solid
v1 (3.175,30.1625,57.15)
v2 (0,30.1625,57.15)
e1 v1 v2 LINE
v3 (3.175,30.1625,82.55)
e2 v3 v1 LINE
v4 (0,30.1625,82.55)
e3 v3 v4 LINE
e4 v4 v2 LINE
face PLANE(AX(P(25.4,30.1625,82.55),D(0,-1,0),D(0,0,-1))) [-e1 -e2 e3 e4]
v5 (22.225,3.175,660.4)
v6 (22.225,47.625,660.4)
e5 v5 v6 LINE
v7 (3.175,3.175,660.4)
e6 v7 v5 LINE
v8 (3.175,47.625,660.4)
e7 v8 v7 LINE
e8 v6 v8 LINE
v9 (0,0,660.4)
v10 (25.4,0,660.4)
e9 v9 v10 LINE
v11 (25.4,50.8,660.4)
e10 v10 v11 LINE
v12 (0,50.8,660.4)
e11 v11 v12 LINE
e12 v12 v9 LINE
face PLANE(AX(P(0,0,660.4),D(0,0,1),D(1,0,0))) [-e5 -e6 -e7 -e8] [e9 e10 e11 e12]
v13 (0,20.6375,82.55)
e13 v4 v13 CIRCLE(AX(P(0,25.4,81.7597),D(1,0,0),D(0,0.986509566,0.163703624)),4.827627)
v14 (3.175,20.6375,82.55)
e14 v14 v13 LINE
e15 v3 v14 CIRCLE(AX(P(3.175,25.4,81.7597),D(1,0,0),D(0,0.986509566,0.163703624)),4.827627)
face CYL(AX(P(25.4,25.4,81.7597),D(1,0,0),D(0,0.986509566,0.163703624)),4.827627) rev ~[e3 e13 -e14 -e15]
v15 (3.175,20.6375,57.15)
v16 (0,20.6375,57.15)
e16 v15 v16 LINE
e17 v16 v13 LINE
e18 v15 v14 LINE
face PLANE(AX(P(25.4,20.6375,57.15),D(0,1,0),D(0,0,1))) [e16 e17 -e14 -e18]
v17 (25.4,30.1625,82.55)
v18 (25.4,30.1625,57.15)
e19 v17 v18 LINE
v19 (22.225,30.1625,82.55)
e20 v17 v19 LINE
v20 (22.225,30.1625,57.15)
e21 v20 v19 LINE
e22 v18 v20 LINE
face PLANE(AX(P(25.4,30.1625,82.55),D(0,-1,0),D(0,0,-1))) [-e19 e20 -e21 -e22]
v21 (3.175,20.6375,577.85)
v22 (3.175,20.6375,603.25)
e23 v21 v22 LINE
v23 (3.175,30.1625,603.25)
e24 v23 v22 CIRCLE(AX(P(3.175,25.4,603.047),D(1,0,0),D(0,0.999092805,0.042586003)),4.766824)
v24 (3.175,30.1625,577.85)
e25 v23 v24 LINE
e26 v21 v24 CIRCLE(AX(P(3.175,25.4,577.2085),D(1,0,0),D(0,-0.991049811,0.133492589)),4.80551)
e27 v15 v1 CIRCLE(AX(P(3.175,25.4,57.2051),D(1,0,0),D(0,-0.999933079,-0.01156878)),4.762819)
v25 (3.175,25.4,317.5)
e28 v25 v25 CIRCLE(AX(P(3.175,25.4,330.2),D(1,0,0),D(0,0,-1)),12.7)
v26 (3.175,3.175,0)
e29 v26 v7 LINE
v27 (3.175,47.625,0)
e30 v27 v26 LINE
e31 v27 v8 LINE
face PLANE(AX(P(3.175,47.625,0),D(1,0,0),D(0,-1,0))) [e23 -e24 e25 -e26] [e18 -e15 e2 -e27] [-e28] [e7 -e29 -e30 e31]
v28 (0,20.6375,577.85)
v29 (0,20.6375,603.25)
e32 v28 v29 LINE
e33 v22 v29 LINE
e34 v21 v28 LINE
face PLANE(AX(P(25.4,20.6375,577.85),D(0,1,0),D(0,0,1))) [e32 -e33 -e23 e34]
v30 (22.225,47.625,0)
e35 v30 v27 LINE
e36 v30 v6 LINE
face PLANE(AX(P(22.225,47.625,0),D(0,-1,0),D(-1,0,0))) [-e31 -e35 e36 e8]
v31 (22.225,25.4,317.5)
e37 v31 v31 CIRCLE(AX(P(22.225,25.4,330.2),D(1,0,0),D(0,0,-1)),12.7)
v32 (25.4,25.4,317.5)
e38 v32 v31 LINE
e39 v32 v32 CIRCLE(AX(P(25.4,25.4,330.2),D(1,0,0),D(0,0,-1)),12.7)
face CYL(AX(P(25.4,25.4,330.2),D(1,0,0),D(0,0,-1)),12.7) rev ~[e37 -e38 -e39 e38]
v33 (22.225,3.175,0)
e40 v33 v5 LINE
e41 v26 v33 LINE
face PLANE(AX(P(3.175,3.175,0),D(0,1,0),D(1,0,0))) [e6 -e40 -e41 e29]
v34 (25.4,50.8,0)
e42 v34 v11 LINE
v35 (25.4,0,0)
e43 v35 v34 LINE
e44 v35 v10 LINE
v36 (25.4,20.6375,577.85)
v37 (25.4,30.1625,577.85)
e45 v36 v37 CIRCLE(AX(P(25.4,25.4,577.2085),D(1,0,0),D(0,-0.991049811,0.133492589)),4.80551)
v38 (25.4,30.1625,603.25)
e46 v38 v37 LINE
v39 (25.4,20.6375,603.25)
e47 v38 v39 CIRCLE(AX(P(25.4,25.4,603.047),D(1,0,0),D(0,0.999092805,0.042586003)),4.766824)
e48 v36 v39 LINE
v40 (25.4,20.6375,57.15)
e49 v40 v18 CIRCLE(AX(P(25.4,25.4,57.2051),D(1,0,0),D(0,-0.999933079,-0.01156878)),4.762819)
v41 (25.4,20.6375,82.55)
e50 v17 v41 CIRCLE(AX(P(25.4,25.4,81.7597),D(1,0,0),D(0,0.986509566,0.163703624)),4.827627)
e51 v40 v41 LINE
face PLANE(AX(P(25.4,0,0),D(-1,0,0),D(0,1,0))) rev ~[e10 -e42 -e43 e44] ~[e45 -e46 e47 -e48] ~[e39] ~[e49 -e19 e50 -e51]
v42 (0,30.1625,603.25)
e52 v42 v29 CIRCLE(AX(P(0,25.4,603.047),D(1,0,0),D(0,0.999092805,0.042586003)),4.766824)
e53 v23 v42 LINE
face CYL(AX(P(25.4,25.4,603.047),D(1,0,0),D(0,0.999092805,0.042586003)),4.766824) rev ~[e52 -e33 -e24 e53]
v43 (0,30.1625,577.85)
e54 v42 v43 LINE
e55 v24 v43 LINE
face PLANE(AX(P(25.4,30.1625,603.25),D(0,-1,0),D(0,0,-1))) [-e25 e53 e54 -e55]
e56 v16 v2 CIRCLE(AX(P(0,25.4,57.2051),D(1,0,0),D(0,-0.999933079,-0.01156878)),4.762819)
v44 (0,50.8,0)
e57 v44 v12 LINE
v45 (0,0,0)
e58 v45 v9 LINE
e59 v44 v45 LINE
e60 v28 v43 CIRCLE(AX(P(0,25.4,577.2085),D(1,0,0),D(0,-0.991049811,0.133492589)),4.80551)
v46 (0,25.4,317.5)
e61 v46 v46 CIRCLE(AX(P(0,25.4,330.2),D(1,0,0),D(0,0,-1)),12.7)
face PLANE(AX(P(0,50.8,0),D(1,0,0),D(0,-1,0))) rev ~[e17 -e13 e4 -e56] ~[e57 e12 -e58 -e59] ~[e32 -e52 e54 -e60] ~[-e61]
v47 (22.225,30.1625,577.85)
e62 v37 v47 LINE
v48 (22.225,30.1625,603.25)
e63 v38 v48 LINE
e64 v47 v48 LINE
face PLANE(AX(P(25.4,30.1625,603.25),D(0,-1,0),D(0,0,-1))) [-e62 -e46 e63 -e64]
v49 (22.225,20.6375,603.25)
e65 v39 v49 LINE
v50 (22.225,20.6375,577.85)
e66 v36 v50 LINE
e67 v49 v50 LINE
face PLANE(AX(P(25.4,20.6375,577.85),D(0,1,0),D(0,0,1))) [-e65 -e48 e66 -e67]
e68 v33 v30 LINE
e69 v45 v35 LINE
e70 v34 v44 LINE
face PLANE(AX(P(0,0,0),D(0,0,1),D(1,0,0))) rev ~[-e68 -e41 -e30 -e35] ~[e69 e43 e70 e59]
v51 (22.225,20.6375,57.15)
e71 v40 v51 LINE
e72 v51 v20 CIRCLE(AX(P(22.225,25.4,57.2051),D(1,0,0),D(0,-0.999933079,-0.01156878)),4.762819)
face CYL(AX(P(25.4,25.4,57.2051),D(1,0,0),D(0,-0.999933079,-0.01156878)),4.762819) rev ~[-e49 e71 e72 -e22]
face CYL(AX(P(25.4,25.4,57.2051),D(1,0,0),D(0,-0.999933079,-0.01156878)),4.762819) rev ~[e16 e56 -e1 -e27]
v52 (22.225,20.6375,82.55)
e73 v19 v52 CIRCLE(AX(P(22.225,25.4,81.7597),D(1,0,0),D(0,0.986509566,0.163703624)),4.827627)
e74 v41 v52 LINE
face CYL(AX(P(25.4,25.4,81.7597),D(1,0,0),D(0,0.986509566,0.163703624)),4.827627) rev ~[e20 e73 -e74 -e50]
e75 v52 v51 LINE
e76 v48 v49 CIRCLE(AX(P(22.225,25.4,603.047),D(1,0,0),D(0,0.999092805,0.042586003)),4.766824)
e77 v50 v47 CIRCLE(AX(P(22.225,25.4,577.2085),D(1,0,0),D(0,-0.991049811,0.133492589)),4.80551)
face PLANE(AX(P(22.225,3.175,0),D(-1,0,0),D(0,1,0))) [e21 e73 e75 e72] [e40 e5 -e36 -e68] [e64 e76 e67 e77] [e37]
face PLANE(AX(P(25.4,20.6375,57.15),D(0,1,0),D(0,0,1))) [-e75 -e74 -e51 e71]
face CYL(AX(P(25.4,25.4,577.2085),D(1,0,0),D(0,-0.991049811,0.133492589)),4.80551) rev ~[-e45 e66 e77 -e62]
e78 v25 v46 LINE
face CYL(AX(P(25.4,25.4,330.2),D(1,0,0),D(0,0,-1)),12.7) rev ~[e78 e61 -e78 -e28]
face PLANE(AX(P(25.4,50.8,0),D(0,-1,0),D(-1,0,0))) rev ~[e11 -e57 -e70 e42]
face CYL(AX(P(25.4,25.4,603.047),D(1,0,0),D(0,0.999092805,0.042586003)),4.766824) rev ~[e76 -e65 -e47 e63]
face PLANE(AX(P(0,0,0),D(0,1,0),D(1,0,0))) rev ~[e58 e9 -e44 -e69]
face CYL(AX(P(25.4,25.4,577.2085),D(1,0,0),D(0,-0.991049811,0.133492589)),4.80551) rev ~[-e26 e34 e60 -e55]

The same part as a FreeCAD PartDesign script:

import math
import FreeCAD as App
import Part
import Sketcher
Q = App.Units.Quantity

doc = App.newDocument("Part")
body = doc.addObject("PartDesign::Body", "Body")

sketch1 = body.newObject("Sketcher::SketchObject", "Sketch")
sketch1.AttachmentSupport = (doc.getObject("XY_Plane"), [""])
sketch1.MapMode = "FlatFace"
sketch1.addGeometry([
    Part.LineSegment(App.Vector(0, 51, 0), App.Vector(0, 0, 0)),
    Part.LineSegment(App.Vector(0, 0, 0), App.Vector(25, 0, 0)),
    Part.LineSegment(App.Vector(25, 0, 0), App.Vector(25, 51, 0)),
    Part.LineSegment(App.Vector(25, 51, 0), App.Vector(0, 51, 0)),
    Part.LineSegment(App.Vector(22, 3, 0), App.Vector(3, 3, 0)),
    Part.LineSegment(App.Vector(3, 3, 0), App.Vector(3, 48, 0)),
    Part.LineSegment(App.Vector(3, 48, 0), App.Vector(22, 48, 0)),
    Part.LineSegment(App.Vector(22, 48, 0), App.Vector(22, 3, 0)),
], False)
sketch1.addConstraint([
    Sketcher.Constraint("Coincident", 0, 2, 1, 1),
    Sketcher.Constraint("Coincident", 1, 2, 2, 1),
    Sketcher.Constraint("Coincident", 2, 2, 3, 1),
    Sketcher.Constraint("Coincident", 3, 2, 0, 1),
    Sketcher.Constraint("Coincident", 4, 2, 5, 1),
    Sketcher.Constraint("Coincident", 5, 2, 6, 1),
    Sketcher.Constraint("Coincident", 6, 2, 7, 1),
    Sketcher.Constraint("Coincident", 7, 2, 4, 1),
    Sketcher.Constraint("Vertical", 0),
    Sketcher.Constraint("Horizontal", 1),
    Sketcher.Constraint("Vertical", 2),
    Sketcher.Constraint("Horizontal", 3),
    Sketcher.Constraint("Horizontal", 4),
    Sketcher.Constraint("Vertical", 5),
    Sketcher.Constraint("Horizontal", 6),
    Sketcher.Constraint("Vertical", 7),
    Sketcher.Constraint("Coincident", 0, 2, -1, 1),
    Sketcher.Constraint("DistanceX", 1, 1, 1, 2, Q("1 in")),
    Sketcher.Constraint("DistanceY", 0, 2, 0, 1, Q("2 in")),
    Sketcher.Constraint("DistanceX", 4, 2, 4, 1, Q("0.75 in")),
    Sketcher.Constraint("DistanceY", 5, 1, 5, 2, Q("1.75 in")),
    Sketcher.Constraint("DistanceX", -1, 1, 4, 2, Q("0.125 in")),
    Sketcher.Constraint("DistanceY", -1, 1, 4, 2, Q("0.125 in")),
])
pad1 = body.newObject("PartDesign::Pad", "Pad")
pad1.Profile = sketch1
pad1.Length = Q("26 in")

sketch2 = body.newObject("Sketcher::SketchObject", "Sketch001")
sketch2.AttachmentSupport = (doc.getObject("YZ_Plane"), [""])
sketch2.MapMode = "FlatFace"
sketch2.AttachmentOffset = App.Placement(App.Vector(0, 0, 1 * 25.4), App.Rotation())
sketch2.addGeometry([
    Part.Circle(App.Vector(25.4, 330.2, 0), App.Vector(0, 0, 1), 12.7),
    Part.LineSegment(App.Vector(30.2, 577.9, 0), App.Vector(30.2, 603.2, 0)),
    Part.ArcOfCircle(Part.Circle(App.Vector(25.4, 603, 0), App.Vector(0, 0, 1), 4.8), math.radians(2), math.radians(178)),
    Part.LineSegment(App.Vector(20.6, 603.2, 0), App.Vector(20.6, 577.9, 0)),
    Part.ArcOfCircle(Part.Circle(App.Vector(25.4, 577.2, 0), App.Vector(0, 0, 1), 4.8), math.radians(172), math.radians(368)),
    Part.LineSegment(App.Vector(30.2, 57.1, 0), App.Vector(30.2, 82.5, 0)),
    Part.ArcOfCircle(Part.Circle(App.Vector(25.4, 81.8, 0), App.Vector(0, 0, 1), 4.8), math.radians(9), math.radians(171)),
    Part.LineSegment(App.Vector(20.6, 82.5, 0), App.Vector(20.6, 57.1, 0)),
    Part.ArcOfCircle(Part.Circle(App.Vector(25.4, 57.2, 0), App.Vector(0, 0, 1), 4.8), math.radians(-179), math.radians(-1)),
], False)
sketch2.addConstraint([
    Sketcher.Constraint("Coincident", 1, 2, 2, 1),
    Sketcher.Constraint("Coincident", 2, 2, 3, 1),
    Sketcher.Constraint("Coincident", 3, 2, 4, 1),
    Sketcher.Constraint("Coincident", 4, 2, 1, 1),
    Sketcher.Constraint("Coincident", 5, 2, 6, 1),
    Sketcher.Constraint("Coincident", 6, 2, 7, 1),
    Sketcher.Constraint("Coincident", 7, 2, 8, 1),
    Sketcher.Constraint("Coincident", 8, 2, 5, 1),
    Sketcher.Constraint("Vertical", 1),
    Sketcher.Constraint("Vertical", 3),
    Sketcher.Constraint("Vertical", 5),
    Sketcher.Constraint("Vertical", 7),
    Sketcher.Constraint("Horizontal", 1, 2, 2, 2),
    Sketcher.Constraint("Horizontal", 3, 2, 4, 2),
    Sketcher.Constraint("Horizontal", 5, 2, 6, 2),
    Sketcher.Constraint("Horizontal", 7, 2, 8, 2),
    Sketcher.Constraint("Vertical", 0, 3, 2, 3),
    Sketcher.Constraint("Vertical", 4, 3, 6, 3),
    Sketcher.Constraint("Vertical", 4, 2, 5, 2),
    Sketcher.Constraint("Equal", 3, 5),
    Sketcher.Constraint("Diameter", 0, Q("1 in")),
    Sketcher.Constraint("DistanceY", 1, 1, 1, 2, Q("1 in")),
    Sketcher.Constraint("DistanceX", -1, 1, 0, 3, Q("1 in")),
    Sketcher.Constraint("DistanceY", -1, 1, 0, 3, Q("13 in")),
    Sketcher.Constraint("Radius", 4, Q("0.1892 in")),
    Sketcher.Constraint("DistanceY", -1, 1, 5, 2, Q("3.25 in")),
    Sketcher.Constraint("Radius", 2, Q("4.7668 mm")),
    Sketcher.Constraint("Radius", 6, Q("4.8276 mm")),
    Sketcher.Constraint("Radius", 8, Q("0.1875118 in")),
    Sketcher.Constraint("DistanceX", 2, 3, 1, 2, Q("0.1875 in")),
    Sketcher.Constraint("DistanceY", 5, 2, 4, 2, Q("19.5 in")),
])
pocket1 = body.newObject("PartDesign::Pocket", "Pocket")
pocket1.Profile = sketch2
pocket1.Length = Q("30 in")

doc.recompute()
